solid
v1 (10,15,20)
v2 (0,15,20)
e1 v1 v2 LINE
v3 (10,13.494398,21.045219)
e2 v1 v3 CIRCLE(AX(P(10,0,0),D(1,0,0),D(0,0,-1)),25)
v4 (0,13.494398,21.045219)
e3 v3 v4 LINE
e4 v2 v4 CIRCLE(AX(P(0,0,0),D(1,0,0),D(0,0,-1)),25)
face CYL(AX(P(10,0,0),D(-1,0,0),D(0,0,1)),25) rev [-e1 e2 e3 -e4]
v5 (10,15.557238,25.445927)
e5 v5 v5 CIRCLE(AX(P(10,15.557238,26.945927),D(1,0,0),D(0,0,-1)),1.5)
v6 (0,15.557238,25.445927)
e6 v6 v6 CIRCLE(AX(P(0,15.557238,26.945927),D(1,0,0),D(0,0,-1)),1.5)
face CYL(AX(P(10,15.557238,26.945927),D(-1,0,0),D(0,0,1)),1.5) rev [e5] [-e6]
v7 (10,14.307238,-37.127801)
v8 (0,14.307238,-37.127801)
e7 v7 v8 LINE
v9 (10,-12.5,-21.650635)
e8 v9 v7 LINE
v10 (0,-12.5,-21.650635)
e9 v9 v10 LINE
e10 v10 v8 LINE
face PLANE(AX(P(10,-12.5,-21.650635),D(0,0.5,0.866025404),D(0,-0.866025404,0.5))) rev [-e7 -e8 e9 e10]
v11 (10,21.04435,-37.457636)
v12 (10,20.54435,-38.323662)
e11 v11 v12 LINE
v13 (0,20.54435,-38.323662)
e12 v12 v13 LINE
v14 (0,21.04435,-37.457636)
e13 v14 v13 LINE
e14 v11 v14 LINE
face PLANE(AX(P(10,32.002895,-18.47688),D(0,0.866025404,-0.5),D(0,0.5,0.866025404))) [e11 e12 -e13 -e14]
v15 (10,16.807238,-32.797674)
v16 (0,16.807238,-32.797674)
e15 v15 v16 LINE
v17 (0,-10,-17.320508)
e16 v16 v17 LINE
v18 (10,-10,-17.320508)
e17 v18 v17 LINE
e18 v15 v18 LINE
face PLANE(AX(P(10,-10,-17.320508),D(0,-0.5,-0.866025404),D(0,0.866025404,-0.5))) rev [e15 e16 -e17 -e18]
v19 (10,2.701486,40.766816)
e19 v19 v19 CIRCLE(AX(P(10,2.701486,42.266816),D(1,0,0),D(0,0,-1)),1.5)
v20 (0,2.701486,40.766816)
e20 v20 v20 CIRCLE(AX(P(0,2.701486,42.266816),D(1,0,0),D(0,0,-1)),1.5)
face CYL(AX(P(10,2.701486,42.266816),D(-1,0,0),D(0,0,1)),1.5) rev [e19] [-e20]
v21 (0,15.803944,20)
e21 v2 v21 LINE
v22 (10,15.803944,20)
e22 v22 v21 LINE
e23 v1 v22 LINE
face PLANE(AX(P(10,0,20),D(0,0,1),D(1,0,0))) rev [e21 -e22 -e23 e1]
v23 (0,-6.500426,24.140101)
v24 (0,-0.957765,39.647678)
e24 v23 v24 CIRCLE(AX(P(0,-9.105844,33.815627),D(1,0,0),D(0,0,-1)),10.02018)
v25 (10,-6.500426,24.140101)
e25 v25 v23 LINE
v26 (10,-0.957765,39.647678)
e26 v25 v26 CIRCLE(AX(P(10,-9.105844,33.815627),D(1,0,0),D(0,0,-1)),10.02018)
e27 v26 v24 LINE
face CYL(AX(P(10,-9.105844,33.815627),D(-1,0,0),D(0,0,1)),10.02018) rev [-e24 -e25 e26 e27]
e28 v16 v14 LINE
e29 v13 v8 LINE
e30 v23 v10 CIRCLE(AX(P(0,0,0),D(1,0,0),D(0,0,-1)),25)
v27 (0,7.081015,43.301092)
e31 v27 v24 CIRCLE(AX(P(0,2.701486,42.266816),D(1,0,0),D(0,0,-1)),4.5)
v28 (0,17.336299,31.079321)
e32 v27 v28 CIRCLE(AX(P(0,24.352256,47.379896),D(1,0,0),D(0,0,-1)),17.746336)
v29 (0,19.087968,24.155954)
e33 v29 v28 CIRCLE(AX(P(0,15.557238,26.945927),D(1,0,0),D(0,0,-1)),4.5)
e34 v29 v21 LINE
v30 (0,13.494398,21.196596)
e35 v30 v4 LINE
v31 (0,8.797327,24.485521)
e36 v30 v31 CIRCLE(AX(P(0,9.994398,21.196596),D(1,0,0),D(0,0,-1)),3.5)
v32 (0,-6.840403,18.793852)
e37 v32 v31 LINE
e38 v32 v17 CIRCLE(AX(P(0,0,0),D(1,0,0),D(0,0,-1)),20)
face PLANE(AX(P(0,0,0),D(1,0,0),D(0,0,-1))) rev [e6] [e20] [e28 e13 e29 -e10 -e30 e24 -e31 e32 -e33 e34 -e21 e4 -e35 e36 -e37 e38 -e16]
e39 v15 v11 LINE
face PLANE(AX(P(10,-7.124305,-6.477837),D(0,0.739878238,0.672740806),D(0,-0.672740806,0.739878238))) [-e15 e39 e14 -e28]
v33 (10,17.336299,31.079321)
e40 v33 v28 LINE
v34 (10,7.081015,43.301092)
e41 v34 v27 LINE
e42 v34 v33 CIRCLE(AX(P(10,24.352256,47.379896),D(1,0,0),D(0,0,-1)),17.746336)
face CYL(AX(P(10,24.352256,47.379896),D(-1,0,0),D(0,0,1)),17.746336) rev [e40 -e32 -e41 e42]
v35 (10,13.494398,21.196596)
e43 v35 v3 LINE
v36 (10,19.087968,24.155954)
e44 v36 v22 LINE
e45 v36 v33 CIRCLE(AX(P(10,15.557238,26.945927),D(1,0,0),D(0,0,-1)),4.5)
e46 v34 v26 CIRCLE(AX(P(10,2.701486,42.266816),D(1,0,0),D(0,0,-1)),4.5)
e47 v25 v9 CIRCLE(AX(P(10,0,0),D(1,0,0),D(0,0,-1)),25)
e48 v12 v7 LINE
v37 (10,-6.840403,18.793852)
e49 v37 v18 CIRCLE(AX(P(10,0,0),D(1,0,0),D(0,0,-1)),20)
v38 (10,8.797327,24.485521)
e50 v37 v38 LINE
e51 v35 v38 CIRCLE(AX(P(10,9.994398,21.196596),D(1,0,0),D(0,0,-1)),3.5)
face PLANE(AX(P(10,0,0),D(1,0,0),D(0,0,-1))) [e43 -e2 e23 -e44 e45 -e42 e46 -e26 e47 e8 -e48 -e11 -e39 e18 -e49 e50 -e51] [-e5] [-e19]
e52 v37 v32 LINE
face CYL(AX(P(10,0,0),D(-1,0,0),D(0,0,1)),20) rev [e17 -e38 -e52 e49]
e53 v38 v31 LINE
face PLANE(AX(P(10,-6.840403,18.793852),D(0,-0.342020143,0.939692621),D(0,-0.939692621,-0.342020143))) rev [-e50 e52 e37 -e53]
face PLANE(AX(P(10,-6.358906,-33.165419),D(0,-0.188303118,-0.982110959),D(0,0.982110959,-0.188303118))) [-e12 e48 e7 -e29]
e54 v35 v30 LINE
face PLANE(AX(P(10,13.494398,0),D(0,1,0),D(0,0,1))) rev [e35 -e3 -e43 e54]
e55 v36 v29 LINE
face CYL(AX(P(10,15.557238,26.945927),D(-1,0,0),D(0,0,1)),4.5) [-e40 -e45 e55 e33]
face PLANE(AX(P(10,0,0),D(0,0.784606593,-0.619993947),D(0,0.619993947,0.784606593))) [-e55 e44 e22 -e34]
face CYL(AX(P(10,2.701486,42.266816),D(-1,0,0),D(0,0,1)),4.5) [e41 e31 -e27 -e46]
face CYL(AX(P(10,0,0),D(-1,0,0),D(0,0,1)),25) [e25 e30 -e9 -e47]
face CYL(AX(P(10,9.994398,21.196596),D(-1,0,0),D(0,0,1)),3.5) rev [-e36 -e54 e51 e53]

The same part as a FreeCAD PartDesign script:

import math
import FreeCAD as App
import Part
import Sketcher
Q = App.Units.Quantity

doc = App.newDocument("Part")
body = doc.addObject("PartDesign::Body", "Body")

# Sketch on YZ plane
sketch1 = doc.addObject("Sketcher::SketchObject", "Sketch")
body.addObject(sketch1)
sketch1.AttachmentSupport = (doc.YZ_Plane, [""])
sketch1.MapMode = "FlatFace"
sketch1.addGeometry(Part.ArcOfCircle(Part.Circle(App.Vector(0, 0, 0), App.Vector(0, 0, 1), 20), math.radians(110), math.radians(240)), False)
sketch1.addGeometry(Part.LineSegment(App.Vector(-6.84, 18.79, 0), App.Vector(8.8, 24.49, 0)), False)
sketch1.addGeometry(Part.ArcOfCircle(Part.Circle(App.Vector(9.99, 21.2, 0), App.Vector(0, 0, 1), 3.5), math.radians(0), math.radians(110)), False)
sketch1.addGeometry(Part.LineSegment(App.Vector(13.49, 21.2, 0), App.Vector(13.49, 21.05, 0)), False)
sketch1.addGeometry(Part.ArcOfCircle(Part.Circle(App.Vector(0, 0, 0), App.Vector(0, 0, 1), 25), math.radians(53.13), math.radians(57.33)), False)
sketch1.addGeometry(Part.LineSegment(App.Vector(15, 20, 0), App.Vector(15.8, 20, 0)), False)
sketch1.addGeometry(Part.LineSegment(App.Vector(15.8, 20, 0), App.Vector(19.09, 24.16, 0)), False)
sketch1.addGeometry(Part.ArcOfCircle(Part.Circle(App.Vector(15.56, 26.95, 0), App.Vector(0, 0, 1), 4.5), math.radians(-38), math.radians(67)), False)
sketch1.addGeometry(Part.ArcOfCircle(Part.Circle(App.Vector(24.35, 47.38, 0), App.Vector(0, 0, 1), 17.75), math.radians(-167), math.radians(-113)), False)
sketch1.addGeometry(Part.ArcOfCircle(Part.Circle(App.Vector(2.7, 42.27, 0), App.Vector(0, 0, 1), 4.5), math.radians(13), math.radians(216)), False)
sketch1.addGeometry(Part.ArcOfCircle(Part.Circle(App.Vector(-9.11, 33.82, 0), App.Vector(0, 0, 1), 10.02), math.radians(-75), math.radians(36)), False)
sketch1.addGeometry(Part.ArcOfCircle(Part.Circle(App.Vector(0, 0, 0), App.Vector(0, 0, 1), 25), math.radians(105), math.radians(240)), False)
sketch1.addGeometry(Part.LineSegment(App.Vector(-12.5, -21.65, 0), App.Vector(14.31, -37.13, 0)), False)
sketch1.addGeometry(Part.LineSegment(App.Vector(14.31, -37.13, 0), App.Vector(20.54, -38.32, 0)), False)
sketch1.addGeometry(Part.LineSegment(App.Vector(20.54, -38.32, 0), App.Vector(21.04, -37.46, 0)), False)
sketch1.addGeometry(Part.LineSegment(App.Vector(21.04, -37.46, 0), App.Vector(16.81, -32.8, 0)), False)
sketch1.addGeometry(Part.LineSegment(App.Vector(16.81, -32.8, 0), App.Vector(-10, -17.32, 0)), False)
sketch1.addGeometry(Part.Circle(App.Vector(2.7, 42.27, 0), App.Vector(0, 0, 1), 1.5), False)
sketch1.addGeometry(Part.Circle(App.Vector(15.56, 26.95, 0), App.Vector(0, 0, 1), 1.5), False)
sketch1.addConstraint(Sketcher.Constraint("Tangent", 0, 1, 1, 1))
sketch1.addConstraint(Sketcher.Constraint("Tangent", 1, 2, 2, 2))
sketch1.addConstraint(Sketcher.Constraint("Tangent", 2, 1, 3, 1))
sketch1.addConstraint(Sketcher.Constraint("Coincident", 3, 2, 4, 2))
sketch1.addConstraint(Sketcher.Constraint("Coincident", 4, 1, 5, 1))
sketch1.addConstraint(Sketcher.Constraint("Coincident", 5, 2, 6, 1))
sketch1.addConstraint(Sketcher.Constraint("Tangent", 6, 2, 7, 1))
sketch1.addConstraint(Sketcher.Constraint("Tangent", 7, 2, 8, 2))
sketch1.addConstraint(Sketcher.Constraint("Tangent", 8, 1, 9, 1))
sketch1.addConstraint(Sketcher.Constraint("Tangent", 9, 2, 10, 2))
sketch1.addConstraint(Sketcher.Constraint("Tangent", 10, 1, 11, 1))
sketch1.addConstraint(Sketcher.Constraint("Tangent", 11, 2, 12, 1))
sketch1.addConstraint(Sketcher.Constraint("Coincident", 12, 2, 13, 1))
sketch1.addConstraint(Sketcher.Constraint("Coincident", 13, 2, 14, 1))
sketch1.addConstraint(Sketcher.Constraint("Coincident", 14, 2, 15, 1))
sketch1.addConstraint(Sketcher.Constraint("Coincident", 15, 2, 16, 1))
sketch1.addConstraint(Sketcher.Constraint("Tangent", 16, 2, 0, 2))
sketch1.addConstraint(Sketcher.Constraint("Vertical", 3))
sketch1.addConstraint(Sketcher.Constraint("Horizontal", 5))
sketch1.addConstraint(Sketcher.Constraint("Coincident", 0, 3, -1, 1))
sketch1.addConstraint(Sketcher.Constraint("Coincident", 4, 3, -1, 1))
sketch1.addConstraint(Sketcher.Constraint("Coincident", 11, 3, -1, 1))
sketch1.addConstraint(Sketcher.Constraint("Coincident", 17, 3, 9, 3))
sketch1.addConstraint(Sketcher.Constraint("Coincident", 18, 3, 7, 3))
sketch1.addConstraint(Sketcher.Constraint("Equal", 7, 9))
sketch1.addConstraint(Sketcher.Constraint("Equal", 4, 11))
sketch1.addConstraint(Sketcher.Constraint("Equal", 17, 18))
sketch1.addConstraint(Sketcher.Constraint("Perpendicular", 12, 14))
sketch1.addConstraint(Sketcher.Constraint("Perpendicular", 14, 16))
sketch1.addConstraint(Sketcher.Constraint("Equal", 12, 16))
sketch1.addConstraint(Sketcher.Constraint("Diameter", 17, Q("3 mm")))
sketch1.addConstraint(Sketcher.Constraint("Radius", 0, Q("20 mm")))
sketch1.addConstraint(Sketcher.Constraint("Radius", 4, Q("25 mm")))
sketch1.addConstraint(Sketcher.Constraint("Radius", 2, Q("3.5 mm")))
sketch1.addConstraint(Sketcher.Constraint("Radius", 7, Q("4.5 mm")))
sketch1.addConstraint(Sketcher.Constraint("Angle", 1, Q("20 deg")))
sketch1.addConstraint(Sketcher.Constraint("Angle", 12, Q("-30 deg")))
sketch1.addConstraint(Sketcher.Constraint("Distance", 14, Q("1 mm")))
sketch1.addConstraint(Sketcher.Constraint("DistanceX", -1, 1, 4, 1, Q("15 mm")))
sketch1.addConstraint(Sketcher.Constraint("Radius", 10, Q("10.02018 mm")))
sketch1.addConstraint(Sketcher.Constraint("Radius", 8, Q("17.746336 mm")))
sketch1.addConstraint(Sketcher.Constraint("DistanceY", 14, 2, 11, 2, Q("15.807001 mm")))
sketch1.addConstraint(Sketcher.Constraint("DistanceX", -1, 1, 7, 2, Q("17.336299 mm")))
sketch1.addConstraint(Sketcher.Constraint("DistanceY", -1, 1, 10, 1, Q("24.140101 mm")))
sketch1.addConstraint(Sketcher.Constraint("DistanceY", 12, 2, -1, 1, Q("37.127801 mm")))
sketch1.addConstraint(Sketcher.Constraint("DistanceY", 2, 3, 8, 3, Q("26.1833 mm")))
sketch1.addConstraint(Sketcher.Constraint("DistanceY", 7, 3, 10, 3, Q("6.8697 mm")))
sketch1.addConstraint(Sketcher.Constraint("DistanceX", 0, 1, 2, 3, Q("16.8348 mm")))
sketch1.addConstraint(Sketcher.Constraint("Distance", 13, Q("6.35072 mm")))
sketch1.addConstraint(Sketcher.Constraint("DistanceX", 5, 1, 5, 2, Q("0.803944 mm")))
pad1 = doc.addObject("PartDesign::Pad", "Pad")
body.addObject(pad1)
pad1.Profile = sketch1
pad1.Length = 10

doc.recompute()
